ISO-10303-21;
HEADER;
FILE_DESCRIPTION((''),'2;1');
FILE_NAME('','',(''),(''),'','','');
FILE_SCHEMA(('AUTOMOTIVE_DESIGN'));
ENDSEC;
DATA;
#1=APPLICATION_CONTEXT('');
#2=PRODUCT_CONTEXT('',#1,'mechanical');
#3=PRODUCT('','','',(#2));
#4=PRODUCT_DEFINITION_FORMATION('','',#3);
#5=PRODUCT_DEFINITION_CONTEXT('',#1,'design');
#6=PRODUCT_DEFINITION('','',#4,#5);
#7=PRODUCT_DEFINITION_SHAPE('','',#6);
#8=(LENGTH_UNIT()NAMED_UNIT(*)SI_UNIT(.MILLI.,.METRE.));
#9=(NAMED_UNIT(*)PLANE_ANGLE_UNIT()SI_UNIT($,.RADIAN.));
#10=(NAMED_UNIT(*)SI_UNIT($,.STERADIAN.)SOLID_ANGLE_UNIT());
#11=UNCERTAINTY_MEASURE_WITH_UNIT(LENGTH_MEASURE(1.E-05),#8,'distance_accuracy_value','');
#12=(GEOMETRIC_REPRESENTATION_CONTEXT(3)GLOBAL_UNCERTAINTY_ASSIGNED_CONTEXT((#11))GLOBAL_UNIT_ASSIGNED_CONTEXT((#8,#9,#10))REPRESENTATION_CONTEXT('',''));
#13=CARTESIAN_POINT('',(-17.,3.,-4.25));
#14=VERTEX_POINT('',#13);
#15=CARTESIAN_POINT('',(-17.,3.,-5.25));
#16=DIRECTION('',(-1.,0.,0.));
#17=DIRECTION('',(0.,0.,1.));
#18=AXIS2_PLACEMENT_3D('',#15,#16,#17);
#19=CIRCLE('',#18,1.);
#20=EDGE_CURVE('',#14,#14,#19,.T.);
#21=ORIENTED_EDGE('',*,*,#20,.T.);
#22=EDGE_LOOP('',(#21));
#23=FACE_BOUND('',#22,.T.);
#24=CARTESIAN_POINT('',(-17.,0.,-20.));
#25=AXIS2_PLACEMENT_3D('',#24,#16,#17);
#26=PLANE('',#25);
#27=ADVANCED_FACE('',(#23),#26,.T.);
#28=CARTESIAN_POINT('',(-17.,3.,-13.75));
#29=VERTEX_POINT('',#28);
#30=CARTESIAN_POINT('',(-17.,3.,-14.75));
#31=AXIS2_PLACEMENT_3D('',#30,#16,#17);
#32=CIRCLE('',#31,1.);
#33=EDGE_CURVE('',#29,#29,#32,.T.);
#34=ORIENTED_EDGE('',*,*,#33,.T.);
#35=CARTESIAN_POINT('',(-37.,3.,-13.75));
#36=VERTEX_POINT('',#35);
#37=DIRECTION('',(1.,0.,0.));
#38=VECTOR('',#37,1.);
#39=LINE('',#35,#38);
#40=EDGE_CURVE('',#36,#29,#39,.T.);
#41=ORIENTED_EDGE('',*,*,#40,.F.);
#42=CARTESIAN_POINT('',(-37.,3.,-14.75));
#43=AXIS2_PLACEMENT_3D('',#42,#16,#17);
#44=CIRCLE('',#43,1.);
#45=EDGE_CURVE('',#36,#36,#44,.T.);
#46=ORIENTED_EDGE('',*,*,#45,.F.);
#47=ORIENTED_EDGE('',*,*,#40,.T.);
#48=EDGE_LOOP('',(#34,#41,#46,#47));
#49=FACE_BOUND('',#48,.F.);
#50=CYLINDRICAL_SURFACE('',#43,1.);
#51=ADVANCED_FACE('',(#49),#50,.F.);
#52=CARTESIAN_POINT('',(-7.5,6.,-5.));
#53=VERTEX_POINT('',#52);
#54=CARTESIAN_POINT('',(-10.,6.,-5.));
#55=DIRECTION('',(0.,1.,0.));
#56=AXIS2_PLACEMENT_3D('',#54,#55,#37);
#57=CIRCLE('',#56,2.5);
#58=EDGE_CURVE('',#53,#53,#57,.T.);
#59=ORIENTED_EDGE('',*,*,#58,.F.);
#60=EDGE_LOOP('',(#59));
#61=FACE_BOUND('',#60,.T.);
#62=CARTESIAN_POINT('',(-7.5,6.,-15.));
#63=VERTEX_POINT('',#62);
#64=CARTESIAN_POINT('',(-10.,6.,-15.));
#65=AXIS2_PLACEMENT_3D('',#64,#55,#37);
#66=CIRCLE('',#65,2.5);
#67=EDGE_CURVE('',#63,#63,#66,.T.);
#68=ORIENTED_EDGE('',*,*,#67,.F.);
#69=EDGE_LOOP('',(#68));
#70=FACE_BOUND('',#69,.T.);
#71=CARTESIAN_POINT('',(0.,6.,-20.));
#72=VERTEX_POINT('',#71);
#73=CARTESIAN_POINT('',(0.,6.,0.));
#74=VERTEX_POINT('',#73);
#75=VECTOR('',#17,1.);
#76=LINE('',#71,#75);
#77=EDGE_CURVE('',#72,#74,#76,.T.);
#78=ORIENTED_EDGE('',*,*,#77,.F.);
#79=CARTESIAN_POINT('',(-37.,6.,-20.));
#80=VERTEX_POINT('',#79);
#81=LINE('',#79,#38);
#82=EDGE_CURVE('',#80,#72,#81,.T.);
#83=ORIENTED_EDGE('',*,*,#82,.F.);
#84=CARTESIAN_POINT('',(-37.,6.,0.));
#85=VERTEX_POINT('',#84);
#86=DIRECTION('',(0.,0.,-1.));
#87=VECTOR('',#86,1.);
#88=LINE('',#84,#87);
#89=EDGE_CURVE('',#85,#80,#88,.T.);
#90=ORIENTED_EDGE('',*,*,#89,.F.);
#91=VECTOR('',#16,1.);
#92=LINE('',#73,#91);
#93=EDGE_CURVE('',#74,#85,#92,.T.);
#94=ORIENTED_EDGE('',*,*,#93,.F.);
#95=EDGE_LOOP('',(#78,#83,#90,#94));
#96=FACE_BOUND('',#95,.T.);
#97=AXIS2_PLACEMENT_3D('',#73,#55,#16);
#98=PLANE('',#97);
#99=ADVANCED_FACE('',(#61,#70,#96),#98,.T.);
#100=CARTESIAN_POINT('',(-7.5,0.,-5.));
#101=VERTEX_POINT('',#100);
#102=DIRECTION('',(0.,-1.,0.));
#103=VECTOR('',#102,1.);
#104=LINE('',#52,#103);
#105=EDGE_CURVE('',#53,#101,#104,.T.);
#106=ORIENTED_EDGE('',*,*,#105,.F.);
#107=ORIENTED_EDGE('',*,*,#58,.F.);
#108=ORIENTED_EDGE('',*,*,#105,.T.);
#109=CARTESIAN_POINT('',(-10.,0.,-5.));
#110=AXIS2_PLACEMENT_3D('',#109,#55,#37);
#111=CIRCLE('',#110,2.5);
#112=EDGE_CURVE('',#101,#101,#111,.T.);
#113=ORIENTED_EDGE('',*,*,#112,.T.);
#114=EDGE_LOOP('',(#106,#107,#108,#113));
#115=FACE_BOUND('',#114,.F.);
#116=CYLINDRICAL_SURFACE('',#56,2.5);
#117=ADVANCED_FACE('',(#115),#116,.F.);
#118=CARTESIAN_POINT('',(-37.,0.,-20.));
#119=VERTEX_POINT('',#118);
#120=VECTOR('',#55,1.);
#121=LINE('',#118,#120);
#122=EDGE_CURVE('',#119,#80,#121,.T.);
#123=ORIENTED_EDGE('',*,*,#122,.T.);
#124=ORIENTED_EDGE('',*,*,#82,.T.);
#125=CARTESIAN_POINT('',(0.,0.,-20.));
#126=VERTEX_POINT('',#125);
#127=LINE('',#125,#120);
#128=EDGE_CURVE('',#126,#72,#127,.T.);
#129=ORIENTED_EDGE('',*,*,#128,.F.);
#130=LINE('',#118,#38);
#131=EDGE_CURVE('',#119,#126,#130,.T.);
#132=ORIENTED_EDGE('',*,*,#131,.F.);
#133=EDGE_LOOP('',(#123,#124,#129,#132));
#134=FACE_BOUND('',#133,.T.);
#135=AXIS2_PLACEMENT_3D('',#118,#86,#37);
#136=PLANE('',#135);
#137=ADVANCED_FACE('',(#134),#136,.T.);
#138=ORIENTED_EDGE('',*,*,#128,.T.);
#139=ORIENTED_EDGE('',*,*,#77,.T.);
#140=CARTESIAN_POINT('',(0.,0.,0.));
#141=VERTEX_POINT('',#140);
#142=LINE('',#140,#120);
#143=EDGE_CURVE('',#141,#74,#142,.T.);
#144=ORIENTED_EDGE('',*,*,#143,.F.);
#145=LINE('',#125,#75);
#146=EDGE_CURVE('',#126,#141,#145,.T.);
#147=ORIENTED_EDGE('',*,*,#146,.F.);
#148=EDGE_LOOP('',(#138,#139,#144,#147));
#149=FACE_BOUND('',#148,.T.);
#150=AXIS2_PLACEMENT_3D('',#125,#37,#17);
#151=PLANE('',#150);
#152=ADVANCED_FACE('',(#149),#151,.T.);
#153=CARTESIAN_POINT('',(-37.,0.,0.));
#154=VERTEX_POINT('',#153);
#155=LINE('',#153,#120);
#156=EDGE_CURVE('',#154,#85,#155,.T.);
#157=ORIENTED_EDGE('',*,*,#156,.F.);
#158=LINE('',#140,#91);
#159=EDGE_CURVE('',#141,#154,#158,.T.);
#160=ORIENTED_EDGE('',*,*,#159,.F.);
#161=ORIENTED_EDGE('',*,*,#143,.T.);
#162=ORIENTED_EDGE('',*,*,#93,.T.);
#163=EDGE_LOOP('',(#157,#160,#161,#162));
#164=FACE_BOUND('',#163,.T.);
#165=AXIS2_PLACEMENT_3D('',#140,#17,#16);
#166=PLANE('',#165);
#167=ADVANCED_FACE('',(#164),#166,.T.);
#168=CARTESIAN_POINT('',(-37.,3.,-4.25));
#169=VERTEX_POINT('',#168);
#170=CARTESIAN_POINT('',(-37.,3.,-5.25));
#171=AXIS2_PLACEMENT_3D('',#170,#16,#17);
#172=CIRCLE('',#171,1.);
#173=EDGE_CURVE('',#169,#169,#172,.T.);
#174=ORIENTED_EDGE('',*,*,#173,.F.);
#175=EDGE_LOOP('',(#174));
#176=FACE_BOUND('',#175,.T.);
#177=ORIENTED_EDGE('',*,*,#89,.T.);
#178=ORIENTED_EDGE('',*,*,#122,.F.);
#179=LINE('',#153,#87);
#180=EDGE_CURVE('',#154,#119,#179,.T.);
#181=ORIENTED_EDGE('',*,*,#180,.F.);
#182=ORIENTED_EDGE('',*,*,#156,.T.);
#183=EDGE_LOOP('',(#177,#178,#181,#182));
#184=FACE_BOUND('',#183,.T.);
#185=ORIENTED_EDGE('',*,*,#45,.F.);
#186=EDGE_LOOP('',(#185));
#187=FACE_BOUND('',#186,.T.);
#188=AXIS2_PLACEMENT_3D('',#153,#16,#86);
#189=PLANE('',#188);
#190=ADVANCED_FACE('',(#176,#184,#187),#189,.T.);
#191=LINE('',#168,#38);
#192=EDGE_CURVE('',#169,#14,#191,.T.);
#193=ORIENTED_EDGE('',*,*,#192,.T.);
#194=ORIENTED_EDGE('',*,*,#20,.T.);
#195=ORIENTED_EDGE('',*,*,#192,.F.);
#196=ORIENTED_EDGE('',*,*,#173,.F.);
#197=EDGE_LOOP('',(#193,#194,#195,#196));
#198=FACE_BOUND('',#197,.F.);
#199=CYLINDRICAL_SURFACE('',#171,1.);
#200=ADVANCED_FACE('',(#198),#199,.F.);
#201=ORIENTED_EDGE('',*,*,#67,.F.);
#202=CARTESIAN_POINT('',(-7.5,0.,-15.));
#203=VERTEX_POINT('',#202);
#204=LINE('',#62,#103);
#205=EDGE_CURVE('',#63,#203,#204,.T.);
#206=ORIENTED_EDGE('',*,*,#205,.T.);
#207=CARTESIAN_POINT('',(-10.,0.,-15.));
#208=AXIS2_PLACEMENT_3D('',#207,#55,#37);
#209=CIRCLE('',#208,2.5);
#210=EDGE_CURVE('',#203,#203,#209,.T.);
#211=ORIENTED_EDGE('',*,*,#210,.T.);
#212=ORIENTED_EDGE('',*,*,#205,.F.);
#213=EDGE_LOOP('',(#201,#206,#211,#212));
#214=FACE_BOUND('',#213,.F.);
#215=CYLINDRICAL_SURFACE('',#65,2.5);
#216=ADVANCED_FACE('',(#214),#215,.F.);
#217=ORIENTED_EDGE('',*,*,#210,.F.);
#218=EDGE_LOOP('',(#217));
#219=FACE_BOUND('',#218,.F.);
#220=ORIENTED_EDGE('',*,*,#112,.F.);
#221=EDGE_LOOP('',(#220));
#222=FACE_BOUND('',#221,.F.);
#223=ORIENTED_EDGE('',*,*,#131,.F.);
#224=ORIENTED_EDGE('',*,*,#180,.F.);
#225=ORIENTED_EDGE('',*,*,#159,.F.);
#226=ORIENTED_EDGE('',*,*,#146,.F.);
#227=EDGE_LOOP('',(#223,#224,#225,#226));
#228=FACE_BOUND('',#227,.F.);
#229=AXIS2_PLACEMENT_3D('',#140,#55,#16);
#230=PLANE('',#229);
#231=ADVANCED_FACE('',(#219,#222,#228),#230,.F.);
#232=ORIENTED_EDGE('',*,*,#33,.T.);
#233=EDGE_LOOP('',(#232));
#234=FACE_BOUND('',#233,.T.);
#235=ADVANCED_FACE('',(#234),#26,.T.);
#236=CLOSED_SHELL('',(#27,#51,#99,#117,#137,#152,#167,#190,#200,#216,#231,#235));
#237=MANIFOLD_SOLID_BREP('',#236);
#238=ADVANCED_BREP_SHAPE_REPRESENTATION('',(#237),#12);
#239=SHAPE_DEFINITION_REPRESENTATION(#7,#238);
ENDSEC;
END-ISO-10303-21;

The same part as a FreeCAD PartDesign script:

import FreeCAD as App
import Part
import Sketcher

V = App.Vector
Q = App.Units.Quantity

doc = App.newDocument("Part")
body = doc.addObject("PartDesign::Body", "Body")

# Sketch on XZ plane
sketch1 = doc.addObject("Sketcher::SketchObject", "Sketch")
body.addObject(sketch1)
sketch1.AttachmentSupport = (doc.XZ_Plane, [""])
sketch1.MapMode = "FlatFace"
sketch1.addGeometry(Part.LineSegment(V(-37, 0, 0), V(0, 0, 0)), False)
sketch1.addGeometry(Part.LineSegment(V(0, 0, 0), V(0, -20, 0)), False)
sketch1.addGeometry(Part.LineSegment(V(0, -20, 0), V(-37, -20, 0)), False)
sketch1.addGeometry(Part.LineSegment(V(-37, -20, 0), V(-37, 0, 0)), False)
sketch1.addConstraint(Sketcher.Constraint("Coincident", 0, 2, 1, 1))
sketch1.addConstraint(Sketcher.Constraint("Coincident", 1, 2, 2, 1))
sketch1.addConstraint(Sketcher.Constraint("Coincident", 2, 2, 3, 1))
sketch1.addConstraint(Sketcher.Constraint("Coincident", 3, 2, 0, 1))
sketch1.addConstraint(Sketcher.Constraint("Horizontal", 0))
sketch1.addConstraint(Sketcher.Constraint("Vertical", 1))
sketch1.addConstraint(Sketcher.Constraint("Horizontal", 2))
sketch1.addConstraint(Sketcher.Constraint("Vertical", 3))
sketch1.addConstraint(Sketcher.Constraint("Coincident", 0, 2, -1, 1))
sketch1.addConstraint(Sketcher.Constraint("DistanceX", 0, 1, 0, 2, Q("37 mm")))
sketch1.addConstraint(Sketcher.Constraint("DistanceY", 1, 2, 1, 1, Q("20 mm")))
pad1 = doc.addObject("PartDesign::Pad", "Pad")
body.addObject(pad1)
pad1.Profile = sketch1
pad1.Length = 6
pad1.Reversed = True

# Sketch on XZ plane
sketch2 = doc.addObject("Sketcher::SketchObject", "Sketch001")
body.addObject(sketch2)
sketch2.AttachmentSupport = (doc.XZ_Plane, [""])
sketch2.MapMode = "FlatFace"
sketch2.AttachmentOffset = App.Placement(V(0, 0, -6), App.Rotation())
sketch2.addGeometry(Part.Circle(V(-10, -5, 0), V(0, 0, 1), 2.5), False)
sketch2.addGeometry(Part.Circle(V(-10, -15, 0), V(0, 0, 1), 2.5), False)
sketch2.addConstraint(Sketcher.Constraint("Equal", 0, 1))
sketch2.addConstraint(Sketcher.Constraint("Vertical", 0, 3, 1, 3))
sketch2.addConstraint(Sketcher.Constraint("Diameter", 0, Q("5 mm")))
sketch2.addConstraint(Sketcher.Constraint("DistanceX", 0, 3, -1, 1, Q("10 mm")))
sketch2.addConstraint(Sketcher.Constraint("DistanceY", 0, 3, -1, 1, Q("5 mm")))
sketch2.addConstraint(Sketcher.Constraint("DistanceY", 1, 3, 0, 3, Q("10 mm")))
pocket1 = doc.addObject("PartDesign::Pocket", "Pocket")
body.addObject(pocket1)
pocket1.Profile = sketch2
pocket1.Length = 8
pocket1.Reversed = True

# Sketch on YZ plane
sketch3 = doc.addObject("Sketcher::SketchObject", "Sketch002")
body.addObject(sketch3)
sketch3.AttachmentSupport = (doc.YZ_Plane, [""])
sketch3.MapMode = "FlatFace"
sketch3.AttachmentOffset = App.Placement(V(0, 0, -37), App.Rotation())
sketch3.addGeometry(Part.Circle(V(3, -14.8, 0), V(0, 0, 1), 1), False)
sketch3.addGeometry(Part.Circle(V(3, -5.2, 0), V(0, 0, 1), 1), False)
sketch3.addConstraint(Sketcher.Constraint("Equal", 0, 1))
sketch3.addConstraint(Sketcher.Constraint("Vertical", 0, 3, 1, 3))
sketch3.addConstraint(Sketcher.Constraint("Diameter", 0, Q("2 mm")))
sketch3.addConstraint(Sketcher.Constraint("DistanceX", -1, 1, 0, 3, Q("3 mm")))
sketch3.addConstraint(Sketcher.Constraint("DistanceY", 0, 3, 1, 3, Q("9.5 mm")))
sketch3.addConstraint(Sketcher.Constraint("DistanceY", 1, 3, -1, 1, Q("5.25 mm")))
pocket2 = doc.addObject("PartDesign::Pocket", "Pocket001")
body.addObject(pocket2)
pocket2.Profile = sketch3
pocket2.Length = 20
pocket2.Reversed = True

doc.recompute()
